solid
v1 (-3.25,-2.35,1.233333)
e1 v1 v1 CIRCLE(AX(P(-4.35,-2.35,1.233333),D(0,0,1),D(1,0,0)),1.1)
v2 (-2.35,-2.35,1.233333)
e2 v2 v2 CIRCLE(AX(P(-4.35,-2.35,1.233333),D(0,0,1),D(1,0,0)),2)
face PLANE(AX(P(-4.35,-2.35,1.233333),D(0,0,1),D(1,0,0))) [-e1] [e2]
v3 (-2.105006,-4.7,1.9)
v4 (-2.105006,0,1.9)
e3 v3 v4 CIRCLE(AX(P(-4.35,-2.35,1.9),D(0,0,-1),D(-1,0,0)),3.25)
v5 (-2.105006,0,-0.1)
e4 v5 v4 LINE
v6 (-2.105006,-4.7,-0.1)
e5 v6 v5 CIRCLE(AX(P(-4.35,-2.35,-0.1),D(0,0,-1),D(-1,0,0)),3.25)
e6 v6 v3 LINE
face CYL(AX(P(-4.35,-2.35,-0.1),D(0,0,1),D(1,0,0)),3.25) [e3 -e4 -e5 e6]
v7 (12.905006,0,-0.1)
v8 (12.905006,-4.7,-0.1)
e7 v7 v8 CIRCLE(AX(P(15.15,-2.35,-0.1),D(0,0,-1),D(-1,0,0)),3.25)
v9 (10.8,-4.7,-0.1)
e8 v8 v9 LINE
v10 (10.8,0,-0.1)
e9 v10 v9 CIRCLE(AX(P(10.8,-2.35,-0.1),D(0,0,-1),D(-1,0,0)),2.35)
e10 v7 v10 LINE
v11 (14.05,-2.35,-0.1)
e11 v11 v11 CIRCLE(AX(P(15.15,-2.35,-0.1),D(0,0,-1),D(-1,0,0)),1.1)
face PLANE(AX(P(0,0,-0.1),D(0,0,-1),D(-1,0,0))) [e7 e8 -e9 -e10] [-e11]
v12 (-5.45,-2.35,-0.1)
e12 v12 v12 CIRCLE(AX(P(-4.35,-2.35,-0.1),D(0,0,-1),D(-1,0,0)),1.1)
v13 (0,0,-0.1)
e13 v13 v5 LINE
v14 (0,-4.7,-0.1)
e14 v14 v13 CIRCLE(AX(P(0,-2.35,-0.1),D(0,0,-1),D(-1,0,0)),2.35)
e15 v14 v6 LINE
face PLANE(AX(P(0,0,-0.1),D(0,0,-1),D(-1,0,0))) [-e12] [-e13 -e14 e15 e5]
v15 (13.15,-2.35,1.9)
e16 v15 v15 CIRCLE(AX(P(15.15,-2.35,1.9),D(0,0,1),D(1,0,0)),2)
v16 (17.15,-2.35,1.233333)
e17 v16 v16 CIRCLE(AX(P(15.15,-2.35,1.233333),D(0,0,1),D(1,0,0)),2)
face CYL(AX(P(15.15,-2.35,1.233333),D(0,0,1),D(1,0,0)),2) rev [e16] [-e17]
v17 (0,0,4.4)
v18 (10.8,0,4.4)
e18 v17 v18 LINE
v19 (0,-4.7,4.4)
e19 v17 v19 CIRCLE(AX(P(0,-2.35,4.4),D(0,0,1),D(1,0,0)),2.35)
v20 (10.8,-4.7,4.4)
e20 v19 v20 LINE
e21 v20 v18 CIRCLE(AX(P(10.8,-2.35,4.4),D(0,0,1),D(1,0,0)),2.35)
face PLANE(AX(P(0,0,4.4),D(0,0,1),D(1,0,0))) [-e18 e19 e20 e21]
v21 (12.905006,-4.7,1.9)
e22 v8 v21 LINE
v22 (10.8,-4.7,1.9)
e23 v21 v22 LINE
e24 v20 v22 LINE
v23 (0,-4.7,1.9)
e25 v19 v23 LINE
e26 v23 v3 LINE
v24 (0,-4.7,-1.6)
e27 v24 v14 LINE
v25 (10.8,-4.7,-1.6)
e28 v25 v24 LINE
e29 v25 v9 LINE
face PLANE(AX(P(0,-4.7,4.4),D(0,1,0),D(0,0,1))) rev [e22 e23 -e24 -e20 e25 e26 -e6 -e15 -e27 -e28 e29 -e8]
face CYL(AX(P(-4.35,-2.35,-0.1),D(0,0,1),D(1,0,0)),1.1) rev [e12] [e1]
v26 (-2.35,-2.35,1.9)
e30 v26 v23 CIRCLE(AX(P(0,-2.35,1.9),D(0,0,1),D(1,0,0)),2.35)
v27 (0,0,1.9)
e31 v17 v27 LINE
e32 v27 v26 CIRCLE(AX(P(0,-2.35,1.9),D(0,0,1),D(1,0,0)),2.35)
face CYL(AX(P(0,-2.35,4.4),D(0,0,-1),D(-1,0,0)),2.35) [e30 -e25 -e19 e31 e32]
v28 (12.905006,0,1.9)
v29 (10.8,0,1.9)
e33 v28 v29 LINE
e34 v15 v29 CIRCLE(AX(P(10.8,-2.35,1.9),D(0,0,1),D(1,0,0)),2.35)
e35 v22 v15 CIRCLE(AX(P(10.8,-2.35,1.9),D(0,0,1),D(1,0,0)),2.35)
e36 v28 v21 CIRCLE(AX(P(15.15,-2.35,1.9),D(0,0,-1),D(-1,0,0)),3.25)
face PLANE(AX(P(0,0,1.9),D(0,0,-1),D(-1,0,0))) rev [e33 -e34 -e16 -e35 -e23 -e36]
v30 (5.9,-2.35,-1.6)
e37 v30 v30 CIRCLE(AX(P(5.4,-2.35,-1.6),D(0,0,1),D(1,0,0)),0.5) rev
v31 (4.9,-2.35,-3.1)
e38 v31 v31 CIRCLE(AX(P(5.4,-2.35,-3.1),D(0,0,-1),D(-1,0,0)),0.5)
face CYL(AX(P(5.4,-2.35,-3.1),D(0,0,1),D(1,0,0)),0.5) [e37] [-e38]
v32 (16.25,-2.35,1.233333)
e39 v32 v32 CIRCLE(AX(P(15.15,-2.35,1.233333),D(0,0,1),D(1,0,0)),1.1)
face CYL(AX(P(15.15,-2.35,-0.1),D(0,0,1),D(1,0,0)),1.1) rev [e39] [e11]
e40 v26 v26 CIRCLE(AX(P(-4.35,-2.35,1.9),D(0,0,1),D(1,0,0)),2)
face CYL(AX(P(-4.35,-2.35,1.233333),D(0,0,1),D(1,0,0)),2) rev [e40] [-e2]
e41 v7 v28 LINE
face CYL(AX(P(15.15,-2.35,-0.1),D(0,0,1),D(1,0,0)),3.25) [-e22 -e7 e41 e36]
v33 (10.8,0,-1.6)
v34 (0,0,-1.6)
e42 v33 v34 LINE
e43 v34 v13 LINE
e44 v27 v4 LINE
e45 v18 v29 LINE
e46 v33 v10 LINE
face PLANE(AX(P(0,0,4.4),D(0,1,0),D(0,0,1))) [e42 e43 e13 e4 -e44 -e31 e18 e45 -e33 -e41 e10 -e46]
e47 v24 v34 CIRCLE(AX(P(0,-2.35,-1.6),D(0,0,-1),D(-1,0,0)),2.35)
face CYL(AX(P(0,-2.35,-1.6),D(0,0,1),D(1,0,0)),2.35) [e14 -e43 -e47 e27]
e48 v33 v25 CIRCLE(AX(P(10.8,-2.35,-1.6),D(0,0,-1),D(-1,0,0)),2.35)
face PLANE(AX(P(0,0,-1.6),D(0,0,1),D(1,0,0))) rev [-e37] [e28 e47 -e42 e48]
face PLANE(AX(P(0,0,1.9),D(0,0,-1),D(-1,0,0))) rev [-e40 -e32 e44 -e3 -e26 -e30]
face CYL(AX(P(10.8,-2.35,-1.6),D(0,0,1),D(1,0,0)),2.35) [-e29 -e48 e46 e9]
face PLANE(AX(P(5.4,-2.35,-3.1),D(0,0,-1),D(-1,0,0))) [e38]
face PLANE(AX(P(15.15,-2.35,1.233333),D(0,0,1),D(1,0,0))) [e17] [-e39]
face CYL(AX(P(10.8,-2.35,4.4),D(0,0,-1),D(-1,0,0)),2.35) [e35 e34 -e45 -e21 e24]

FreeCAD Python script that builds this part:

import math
import FreeCAD as App
import Part
import Sketcher

V = App.Vector

doc = App.newDocument("Part")
body = doc.addObject("PartDesign::Body", "Body")

sketch1 = body.newObject("Sketcher::SketchObject", "Sketch")
sketch1.AttachmentSupport = (doc.getObject("XY_Plane"), [""])
sketch1.MapMode = "FlatFace"
sketch1.AttachmentOffset = App.Placement(V(0, 0, 1.9), App.Rotation())
sketch1.addGeometry(Part.ArcOfCircle(Part.Circle(V(0, -2.4, 0), V(0, 0, 1), 2.4), math.radians(90), math.radians(270)), False)
sketch1.addGeometry(Part.LineSegment(V(0, -4.7, 0), V(10.8, -4.7, 0)), False)
sketch1.addGeometry(Part.ArcOfCircle(Part.Circle(V(10.8, -2.4, 0), V(0, 0, 1), 2.3), math.radians(-90), math.radians(0)), False)
sketch1.addGeometry(Part.ArcOfCircle(Part.Circle(V(10.8, -2.3, 0), V(0, 0, 1), 2.3), math.radians(0), math.radians(90)), False)
sketch1.addGeometry(Part.LineSegment(V(10.8, 0, 0), V(0, 0, 0)), False)
sketch1.addConstraint(Sketcher.Constraint("Tangent", 0, 2, 1, 1))
sketch1.addConstraint(Sketcher.Constraint("Tangent", 1, 2, 2, 1))
sketch1.addConstraint(Sketcher.Constraint("Tangent", 2, 2, 3, 1))
sketch1.addConstraint(Sketcher.Constraint("Tangent", 3, 2, 4, 1))
sketch1.addConstraint(Sketcher.Constraint("Tangent", 4, 2, 0, 1))
sketch1.addConstraint(Sketcher.Constraint("Horizontal", 1))
sketch1.addConstraint(Sketcher.Constraint("Horizontal", 4))
sketch1.addConstraint(Sketcher.Constraint("Coincident", 4, 2, -1, 1))
sketch1.addConstraint(Sketcher.Constraint("Equal", 0, 2))
sketch1.addConstraint(Sketcher.Constraint("Horizontal", 3, 3, 2, 2))
sketch1.addConstraint(Sketcher.Constraint("Radius", 0, 2.35))
sketch1.addConstraint(Sketcher.Constraint("DistanceX", 1, 1, 1, 2, 10.8))
pad1 = body.newObject("PartDesign::Pad", "Pad")
pad1.Profile = sketch1
pad1.Length = 2.5

sketch2 = body.newObject("Sketcher::SketchObject", "Sketch001")
sketch2.AttachmentSupport = (doc.getObject("XY_Plane"), [""])
sketch2.MapMode = "FlatFace"
sketch2.AttachmentOffset = App.Placement(V(0, 0, 1.9), App.Rotation())
sketch2.addGeometry(Part.ArcOfCircle(Part.Circle(V(15.2, -2.4, 0), V(0, 0, 1), 3.2), math.radians(-134), math.radians(134)), False)
sketch2.addGeometry(Part.LineSegment(V(12.9, -4.7, 0), V(-2.1, -4.7, 0)), False)
sketch2.addGeometry(Part.ArcOfCircle(Part.Circle(V(-4.3, -2.4, 0), V(0, 0, 1), 3.2), math.radians(46), math.radians(314)), False)
sketch2.addGeometry(Part.LineSegment(V(-2.1, 0, 0), V(12.9, 0, 0)), False)
sketch2.addGeometry(Part.Circle(V(15.2, -2.4, 0), V(0, 0, 1), 1.1), False)
sketch2.addGeometry(Part.Circle(V(-4.3, -2.4, 0), V(0, 0, 1), 1.1), False)
sketch2.addConstraint(Sketcher.Constraint("Coincident", 0, 1, 1, 1))
sketch2.addConstraint(Sketcher.Constraint("Coincident", 1, 2, 2, 2))
sketch2.addConstraint(Sketcher.Constraint("Coincident", 2, 1, 3, 1))
sketch2.addConstraint(Sketcher.Constraint("Coincident", 3, 2, 0, 2))
sketch2.addConstraint(Sketcher.Constraint("Horizontal", 1))
sketch2.addConstraint(Sketcher.Constraint("Horizontal", 3))
sketch2.addConstraint(Sketcher.Constraint("Coincident", 4, 3, 0, 3))
sketch2.addConstraint(Sketcher.Constraint("Coincident", 5, 3, 2, 3))
sketch2.addConstraint(Sketcher.Constraint("Equal", 0, 2))
sketch2.addConstraint(Sketcher.Constraint("Equal", 4, 5))
sketch2.addConstraint(Sketcher.Constraint("PointOnObject", 2, 1, -1))
sketch2.addConstraint(Sketcher.Constraint("Horizontal", 0, 3, 2, 3))
sketch2.addConstraint(Sketcher.Constraint("Vertical", 1, 2, 2, 1))
sketch2.addConstraint(Sketcher.Constraint("Diameter", 4, 2.2))
sketch2.addConstraint(Sketcher.Constraint("Radius", 0, 3.25))
sketch2.addConstraint(Sketcher.Constraint("DistanceY", 0, 1, -1, 1, 4.7))
sketch2.addConstraint(Sketcher.Constraint("DistanceX", 2, 3, 0, 3, 19.5))
sketch2.addConstraint(Sketcher.Constraint("DistanceX", -1, 1, 0, 3, 15.15))
pad2 = body.newObject("PartDesign::Pad", "Pad001")
pad2.Profile = sketch2
pad2.Length = 2
pad2.Reversed = True

sketch3 = body.newObject("Sketcher::SketchObject", "Sketch002")
sketch3.AttachmentSupport = (doc.getObject("XY_Plane"), [""])
sketch3.MapMode = "FlatFace"
sketch3.AttachmentOffset = App.Placement(V(0, 0, 1.9), App.Rotation())
sketch3.addGeometry(Part.Circle(V(15.2, -2.4, 0), V(0, 0, 1), 2), False)
sketch3.addGeometry(Part.Circle(V(-4.3, -2.4, 0), V(0, 0, 1), 2), False)
sketch3.addConstraint(Sketcher.Constraint("Equal", 0, 1))
sketch3.addConstraint(Sketcher.Constraint("Horizontal", 0, 3, 1, 3))
sketch3.addConstraint(Sketcher.Constraint("Diameter", 0, 4.0))
sketch3.addConstraint(Sketcher.Constraint("DistanceX", 1, 3, 0, 3, 19.5))
sketch3.addConstraint(Sketcher.Constraint("DistanceX", -1, 1, 0, 3, 15.15))
sketch3.addConstraint(Sketcher.Constraint("DistanceY", 0, 3, -1, 1, 2.35))
pocket1 = body.newObject("PartDesign::Pocket", "Pocket")
pocket1.Profile = sketch3
pocket1.Length = 0.666667

sketch4 = body.newObject("Sketcher::SketchObject", "Sketch003")
sketch4.AttachmentSupport = (doc.getObject("XY_Plane"), [""])
sketch4.MapMode = "FlatFace"
sketch4.AttachmentOffset = App.Placement(V(0, 0, -0.1), App.Rotation())
sketch4.addGeometry(Part.LineSegment(V(10.8, -4.7, 0), V(0, -4.7, 0)), False)
sketch4.addGeometry(Part.ArcOfCircle(Part.Circle(V(0, -2.4, 0), V(0, 0, 1), 2.4), math.radians(90), math.radians(270)), False)
sketch4.addGeometry(Part.LineSegment(V(0, 0, 0), V(10.8, 0, 0)), False)
sketch4.addGeometry(Part.ArcOfCircle(Part.Circle(V(10.8, -2.4, 0), V(0, 0, 1), 2.4), math.radians(-90), math.radians(90)), False)
sketch4.addConstraint(Sketcher.Constraint("Tangent", 0, 2, 1, 2))
sketch4.addConstraint(Sketcher.Constraint("Tangent", 1, 1, 2, 1))
sketch4.addConstraint(Sketcher.Constraint("Tangent", 2, 2, 3, 2))
sketch4.addConstraint(Sketcher.Constraint("Tangent", 3, 1, 0, 1))
sketch4.addConstraint(Sketcher.Constraint("Horizontal", 0))
sketch4.addConstraint(Sketcher.Constraint("Horizontal", 2))
sketch4.addConstraint(Sketcher.Constraint("Coincident", 1, 1, -1, 1))
sketch4.addConstraint(Sketcher.Constraint("Radius", 1, 2.35))
sketch4.addConstraint(Sketcher.Constraint("DistanceX", 0, 2, 0, 1, 10.8))
pad3 = body.newObject("PartDesign::Pad", "Pad002")
pad3.Profile = sketch4
pad3.Length = 1.5
pad3.Reversed = True

sketch5 = body.newObject("Sketcher::SketchObject", "Sketch004")
sketch5.AttachmentSupport = (doc.getObject("XY_Plane"), [""])
sketch5.MapMode = "FlatFace"
sketch5.AttachmentOffset = App.Placement(V(0, 0, -1.6), App.Rotation())
sketch5.addGeometry(Part.Circle(V(5.4, -2.4, 0), V(0, 0, 1), 0.5), False)
sketch5.addConstraint(Sketcher.Constraint("Diameter", 0, 1.0))
sketch5.addConstraint(Sketcher.Constraint("DistanceX", -1, 1, 0, 3, 5.4))
sketch5.addConstraint(Sketcher.Constraint("DistanceY", 0, 3, -1, 1, 2.35))
pad4 = body.newObject("PartDesign::Pad", "Pad003")
pad4.Profile = sketch5
pad4.Length = 1.5
pad4.Reversed = True

doc.recompute()
